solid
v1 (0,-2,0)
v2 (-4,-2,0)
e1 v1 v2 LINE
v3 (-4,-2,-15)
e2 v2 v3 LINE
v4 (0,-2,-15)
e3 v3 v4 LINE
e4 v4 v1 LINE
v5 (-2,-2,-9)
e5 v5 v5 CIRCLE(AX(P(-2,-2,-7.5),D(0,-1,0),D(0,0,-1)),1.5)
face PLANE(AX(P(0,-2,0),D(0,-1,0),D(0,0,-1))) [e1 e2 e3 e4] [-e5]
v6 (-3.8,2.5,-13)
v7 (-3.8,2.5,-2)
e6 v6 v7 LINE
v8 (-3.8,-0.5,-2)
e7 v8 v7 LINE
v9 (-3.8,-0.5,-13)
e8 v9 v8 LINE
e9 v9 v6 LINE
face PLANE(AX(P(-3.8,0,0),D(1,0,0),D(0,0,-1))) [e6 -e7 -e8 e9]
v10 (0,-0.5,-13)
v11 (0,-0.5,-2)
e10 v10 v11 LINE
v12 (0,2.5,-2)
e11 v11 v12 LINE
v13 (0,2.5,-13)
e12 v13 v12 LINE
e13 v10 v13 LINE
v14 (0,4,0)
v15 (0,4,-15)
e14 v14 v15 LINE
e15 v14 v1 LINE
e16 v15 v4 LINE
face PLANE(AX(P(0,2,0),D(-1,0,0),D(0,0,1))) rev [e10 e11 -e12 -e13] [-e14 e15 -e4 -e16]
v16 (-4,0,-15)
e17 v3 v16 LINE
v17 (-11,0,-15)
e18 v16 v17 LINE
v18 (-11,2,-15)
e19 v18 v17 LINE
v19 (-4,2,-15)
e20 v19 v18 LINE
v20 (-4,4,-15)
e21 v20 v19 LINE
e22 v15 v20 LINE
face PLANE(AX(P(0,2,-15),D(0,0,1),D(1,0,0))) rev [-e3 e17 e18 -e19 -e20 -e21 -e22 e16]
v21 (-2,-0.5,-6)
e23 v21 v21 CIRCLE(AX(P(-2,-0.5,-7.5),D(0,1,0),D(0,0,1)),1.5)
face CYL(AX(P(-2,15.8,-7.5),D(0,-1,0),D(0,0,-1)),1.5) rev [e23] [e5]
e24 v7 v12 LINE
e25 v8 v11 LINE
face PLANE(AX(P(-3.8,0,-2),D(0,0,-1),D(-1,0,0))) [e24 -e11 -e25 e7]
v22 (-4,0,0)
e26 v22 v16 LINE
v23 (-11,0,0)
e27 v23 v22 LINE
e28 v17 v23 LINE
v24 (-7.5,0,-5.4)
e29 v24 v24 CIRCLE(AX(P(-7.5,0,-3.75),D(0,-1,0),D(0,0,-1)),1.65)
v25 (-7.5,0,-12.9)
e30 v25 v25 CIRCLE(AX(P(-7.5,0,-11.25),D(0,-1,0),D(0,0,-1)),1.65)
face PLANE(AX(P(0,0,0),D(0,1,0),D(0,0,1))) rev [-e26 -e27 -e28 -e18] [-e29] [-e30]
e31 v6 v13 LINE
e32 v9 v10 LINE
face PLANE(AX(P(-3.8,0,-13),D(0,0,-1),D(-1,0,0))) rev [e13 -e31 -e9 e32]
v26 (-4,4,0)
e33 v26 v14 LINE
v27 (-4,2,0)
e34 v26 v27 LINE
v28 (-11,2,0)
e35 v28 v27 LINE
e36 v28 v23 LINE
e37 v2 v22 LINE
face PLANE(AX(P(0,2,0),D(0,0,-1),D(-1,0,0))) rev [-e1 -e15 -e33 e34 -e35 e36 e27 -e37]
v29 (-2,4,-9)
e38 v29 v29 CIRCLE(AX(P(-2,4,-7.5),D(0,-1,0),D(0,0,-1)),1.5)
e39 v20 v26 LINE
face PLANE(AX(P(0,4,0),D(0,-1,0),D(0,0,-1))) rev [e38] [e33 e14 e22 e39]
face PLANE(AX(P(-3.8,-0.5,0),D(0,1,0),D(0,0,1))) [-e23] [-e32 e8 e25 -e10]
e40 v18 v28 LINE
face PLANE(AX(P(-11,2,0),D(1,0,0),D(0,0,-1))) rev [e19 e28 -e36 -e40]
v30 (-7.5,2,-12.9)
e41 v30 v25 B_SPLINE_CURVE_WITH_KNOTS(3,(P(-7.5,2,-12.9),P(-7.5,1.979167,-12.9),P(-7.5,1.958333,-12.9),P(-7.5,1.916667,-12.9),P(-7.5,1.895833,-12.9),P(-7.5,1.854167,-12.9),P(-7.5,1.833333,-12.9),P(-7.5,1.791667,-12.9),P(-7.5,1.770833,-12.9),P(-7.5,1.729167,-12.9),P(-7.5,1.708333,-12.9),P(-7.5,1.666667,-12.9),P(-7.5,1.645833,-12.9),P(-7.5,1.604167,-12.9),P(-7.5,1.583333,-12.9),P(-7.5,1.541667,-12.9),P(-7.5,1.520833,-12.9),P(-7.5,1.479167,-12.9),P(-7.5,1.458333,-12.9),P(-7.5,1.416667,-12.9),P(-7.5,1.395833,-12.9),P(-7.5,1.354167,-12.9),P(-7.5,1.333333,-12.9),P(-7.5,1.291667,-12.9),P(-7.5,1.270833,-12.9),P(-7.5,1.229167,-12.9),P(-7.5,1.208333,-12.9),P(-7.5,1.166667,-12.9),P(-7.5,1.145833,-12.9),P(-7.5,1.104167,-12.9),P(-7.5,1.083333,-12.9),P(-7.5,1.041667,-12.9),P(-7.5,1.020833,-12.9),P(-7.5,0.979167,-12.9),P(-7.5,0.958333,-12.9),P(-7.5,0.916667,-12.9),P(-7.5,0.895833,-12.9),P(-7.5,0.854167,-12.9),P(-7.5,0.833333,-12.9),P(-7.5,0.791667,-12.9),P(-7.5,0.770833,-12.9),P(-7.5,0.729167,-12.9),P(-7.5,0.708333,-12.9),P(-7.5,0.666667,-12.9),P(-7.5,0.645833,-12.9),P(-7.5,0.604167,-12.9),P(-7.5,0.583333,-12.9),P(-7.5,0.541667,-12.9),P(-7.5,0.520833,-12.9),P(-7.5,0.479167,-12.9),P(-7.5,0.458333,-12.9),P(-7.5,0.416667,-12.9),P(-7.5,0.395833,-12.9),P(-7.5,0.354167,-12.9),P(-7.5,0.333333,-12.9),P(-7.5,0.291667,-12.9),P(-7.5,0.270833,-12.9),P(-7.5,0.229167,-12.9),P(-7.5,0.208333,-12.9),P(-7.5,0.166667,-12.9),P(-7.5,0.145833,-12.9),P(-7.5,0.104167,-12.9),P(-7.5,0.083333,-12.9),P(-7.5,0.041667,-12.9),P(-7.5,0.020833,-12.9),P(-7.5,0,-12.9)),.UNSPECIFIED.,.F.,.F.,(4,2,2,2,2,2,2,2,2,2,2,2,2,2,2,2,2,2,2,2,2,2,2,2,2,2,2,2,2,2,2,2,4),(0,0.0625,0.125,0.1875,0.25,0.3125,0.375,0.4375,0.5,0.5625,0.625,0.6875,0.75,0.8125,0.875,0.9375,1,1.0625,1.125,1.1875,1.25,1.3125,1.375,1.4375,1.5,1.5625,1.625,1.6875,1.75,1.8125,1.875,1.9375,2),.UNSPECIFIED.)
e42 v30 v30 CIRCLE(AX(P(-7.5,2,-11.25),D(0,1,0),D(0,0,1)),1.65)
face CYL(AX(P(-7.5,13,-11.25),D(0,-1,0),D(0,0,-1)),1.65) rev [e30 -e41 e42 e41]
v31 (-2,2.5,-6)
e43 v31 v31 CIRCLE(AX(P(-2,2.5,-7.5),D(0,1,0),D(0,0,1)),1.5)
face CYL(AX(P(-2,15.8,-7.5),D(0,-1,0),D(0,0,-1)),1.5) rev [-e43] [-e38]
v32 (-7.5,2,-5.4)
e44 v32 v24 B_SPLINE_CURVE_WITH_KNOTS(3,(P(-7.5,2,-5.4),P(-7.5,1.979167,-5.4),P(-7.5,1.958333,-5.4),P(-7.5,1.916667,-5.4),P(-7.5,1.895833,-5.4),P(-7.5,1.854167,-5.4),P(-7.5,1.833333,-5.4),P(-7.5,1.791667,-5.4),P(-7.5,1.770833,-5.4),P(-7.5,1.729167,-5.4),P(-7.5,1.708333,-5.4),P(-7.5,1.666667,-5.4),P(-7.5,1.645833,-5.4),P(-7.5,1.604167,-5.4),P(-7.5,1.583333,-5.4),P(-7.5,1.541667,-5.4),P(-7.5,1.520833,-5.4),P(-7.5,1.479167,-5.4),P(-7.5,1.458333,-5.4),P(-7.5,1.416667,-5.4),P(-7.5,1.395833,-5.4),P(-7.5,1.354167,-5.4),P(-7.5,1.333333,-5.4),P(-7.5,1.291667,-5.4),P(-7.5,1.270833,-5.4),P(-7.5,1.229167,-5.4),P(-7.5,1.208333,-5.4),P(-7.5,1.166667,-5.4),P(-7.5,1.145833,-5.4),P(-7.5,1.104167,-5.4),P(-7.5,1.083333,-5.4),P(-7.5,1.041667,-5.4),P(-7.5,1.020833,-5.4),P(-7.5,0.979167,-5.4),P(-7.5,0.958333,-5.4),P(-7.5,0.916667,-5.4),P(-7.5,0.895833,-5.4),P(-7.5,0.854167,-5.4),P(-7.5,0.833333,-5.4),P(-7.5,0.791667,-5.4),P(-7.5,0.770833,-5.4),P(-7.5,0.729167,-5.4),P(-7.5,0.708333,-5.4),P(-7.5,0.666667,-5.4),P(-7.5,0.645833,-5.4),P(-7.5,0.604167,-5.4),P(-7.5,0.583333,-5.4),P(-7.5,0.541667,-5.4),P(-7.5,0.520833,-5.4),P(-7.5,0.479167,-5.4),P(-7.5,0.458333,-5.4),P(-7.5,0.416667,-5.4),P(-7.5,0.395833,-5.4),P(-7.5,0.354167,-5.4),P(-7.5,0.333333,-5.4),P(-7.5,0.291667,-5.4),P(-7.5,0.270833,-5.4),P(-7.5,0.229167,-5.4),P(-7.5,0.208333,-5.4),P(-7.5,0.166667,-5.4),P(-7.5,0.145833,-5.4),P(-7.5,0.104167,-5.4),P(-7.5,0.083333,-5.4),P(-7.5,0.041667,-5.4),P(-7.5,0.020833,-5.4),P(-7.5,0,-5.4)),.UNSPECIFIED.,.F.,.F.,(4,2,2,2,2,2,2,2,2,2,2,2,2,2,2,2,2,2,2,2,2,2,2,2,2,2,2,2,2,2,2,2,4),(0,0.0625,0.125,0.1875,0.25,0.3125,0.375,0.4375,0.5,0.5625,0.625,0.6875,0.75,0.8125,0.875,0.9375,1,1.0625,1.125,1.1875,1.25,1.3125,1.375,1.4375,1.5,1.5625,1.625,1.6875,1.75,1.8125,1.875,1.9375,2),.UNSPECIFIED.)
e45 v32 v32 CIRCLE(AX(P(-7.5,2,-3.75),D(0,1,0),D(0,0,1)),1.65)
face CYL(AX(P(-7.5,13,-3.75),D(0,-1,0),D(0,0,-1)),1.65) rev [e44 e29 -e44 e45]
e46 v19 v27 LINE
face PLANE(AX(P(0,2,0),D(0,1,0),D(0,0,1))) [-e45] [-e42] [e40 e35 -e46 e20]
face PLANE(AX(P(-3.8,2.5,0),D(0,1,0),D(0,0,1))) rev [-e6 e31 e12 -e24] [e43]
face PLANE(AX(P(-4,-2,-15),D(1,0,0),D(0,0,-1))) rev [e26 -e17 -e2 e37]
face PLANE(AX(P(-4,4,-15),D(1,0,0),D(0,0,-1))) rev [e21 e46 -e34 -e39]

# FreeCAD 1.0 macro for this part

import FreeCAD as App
import Part
import Sketcher
Q = App.Units.Quantity

doc = App.newDocument("Part")
params = doc.addObject("Spreadsheet::Sheet", "Params")
for row, (alias, value) in enumerate([
    ("sketch1_width", "11 mm"),
    ("sketch1_height", "15 mm"),
    ("pad1_length", "2 mm"),
    ("sketch2_width", "4 mm"),
    ("sketch2_height", "15 mm"),
    ("pad2_length", "2 mm"),
    ("sketch3_width", "4 mm"),
    ("sketch3_height", "15 mm"),
    ("pad3_length", "2 mm"),
    ("sketch4_diameter", "3.3 mm"),
    ("pocket1_length", "13 mm"),
    ("sketch5_width", "3 mm"),
    ("sketch5_height", "11 mm"),
    ("pocket2_length", "3.8 mm"),
    ("sketch6_diameter", "3 mm"),
    ("pocket3_length", "17.8 mm"),
], start=1):
    params.set(f"A{row}", alias)
    params.set(f"B{row}", "=" + value)
    params.setAlias(f"B{row}", alias)

body = doc.addObject("PartDesign::Body", "Body")

# Sketch on XZ plane
sketch1 = body.newObject("Sketcher::SketchObject", "Sketch")
sketch1.AttachmentSupport = (doc.getObject("XZ_Plane"), [""])
sketch1.MapMode = "FlatFace"
sketch1.addGeometry([
    Part.LineSegment(App.Vector(-11, -15, 0), App.Vector(-11, 0, 0)),
    Part.LineSegment(App.Vector(-11, 0, 0), App.Vector(0, 0, 0)),
    Part.LineSegment(App.Vector(0, 0, 0), App.Vector(0, -15, 0)),
    Part.LineSegment(App.Vector(0, -15, 0), App.Vector(-11, -15, 0)),
], False)
sketch1.addConstraint([
    Sketcher.Constraint("Coincident", 0, 2, 1, 1),
    Sketcher.Constraint("Coincident", 1, 2, 2, 1),
    Sketcher.Constraint("Coincident", 2, 2, 3, 1),
    Sketcher.Constraint("Coincident", 3, 2, 0, 1),
    Sketcher.Constraint("Vertical", 0),
    Sketcher.Constraint("Horizontal", 1),
    Sketcher.Constraint("Vertical", 2),
    Sketcher.Constraint("Horizontal", 3),
    Sketcher.Constraint("Coincident", 1, 2, -1, 1),
    Sketcher.Constraint("DistanceX", 1, 1, 1, 2, Q("11 mm")),
    Sketcher.Constraint("DistanceY", 0, 1, 0, 2, Q("15 mm")),
])
sketch1.setExpression("Constraints[9]", "Params.sketch1_width")
sketch1.setExpression("Constraints[10]", "Params.sketch1_height")
pad1 = body.newObject("PartDesign::Pad", "Pad")
pad1.Profile = sketch1
pad1.setExpression("Length", "Params.pad1_length")
pad1.Reversed = True

# Sketch on XZ plane
sketch2 = body.newObject("Sketcher::SketchObject", "Sketch001")
sketch2.AttachmentSupport = (doc.getObject("XZ_Plane"), [""])
sketch2.MapMode = "FlatFace"
sketch2.AttachmentOffset = App.Placement(App.Vector(0, 0, -2), App.Rotation())
sketch2.addGeometry([
    Part.LineSegment(App.Vector(-4, -15, 0), App.Vector(-4, 0, 0)),
    Part.LineSegment(App.Vector(-4, 0, 0), App.Vector(0, 0, 0)),
    Part.LineSegment(App.Vector(0, 0, 0), App.Vector(0, -15, 0)),
    Part.LineSegment(App.Vector(0, -15, 0), App.Vector(-4, -15, 0)),
], False)
sketch2.addConstraint([
    Sketcher.Constraint("Coincident", 0, 2, 1, 1),
    Sketcher.Constraint("Coincident", 1, 2, 2, 1),
    Sketcher.Constraint("Coincident", 2, 2, 3, 1),
    Sketcher.Constraint("Coincident", 3, 2, 0, 1),
    Sketcher.Constraint("Vertical", 0),
    Sketcher.Constraint("Horizontal", 1),
    Sketcher.Constraint("Vertical", 2),
    Sketcher.Constraint("Horizontal", 3),
    Sketcher.Constraint("Coincident", 1, 2, -1, 1),
    Sketcher.Constraint("DistanceX", 1, 1, 1, 2, Q("4 mm")),
    Sketcher.Constraint("DistanceY", 0, 1, 0, 2, Q("15 mm")),
])
sketch2.setExpression("Constraints[9]", "Params.sketch2_width")
sketch2.setExpression("Constraints[10]", "Params.sketch2_height")
pad2 = body.newObject("PartDesign::Pad", "Pad001")
pad2.Profile = sketch2
pad2.setExpression("Length", "Params.pad2_length")
pad2.Reversed = True

# Sketch on XZ plane
sketch3 = body.newObject("Sketcher::SketchObject", "Sketch002")
sketch3.AttachmentSupport = (doc.getObject("XZ_Plane"), [""])
sketch3.MapMode = "FlatFace"
sketch3.addGeometry([
    Part.LineSegment(App.Vector(0, -15, 0), App.Vector(0, 0, 0)),
    Part.LineSegment(App.Vector(0, 0, 0), App.Vector(-4, 0, 0)),
    Part.LineSegment(App.Vector(-4, 0, 0), App.Vector(-4, -15, 0)),
    Part.LineSegment(App.Vector(-4, -15, 0), App.Vector(0, -15, 0)),
], False)
sketch3.addConstraint([
    Sketcher.Constraint("Coincident", 0, 2, 1, 1),
    Sketcher.Constraint("Coincident", 1, 2, 2, 1),
    Sketcher.Constraint("Coincident", 2, 2, 3, 1),
    Sketcher.Constraint("Coincident", 3, 2, 0, 1),
    Sketcher.Constraint("Vertical", 0),
    Sketcher.Constraint("Horizontal", 1),
    Sketcher.Constraint("Vertical", 2),
    Sketcher.Constraint("Horizontal", 3),
    Sketcher.Constraint("Coincident", 0, 2, -1, 1),
    Sketcher.Constraint("DistanceX", 1, 2, 1, 1, Q("4 mm")),
    Sketcher.Constraint("DistanceY", 0, 1, 0, 2, Q("15 mm")),
])
sketch3.setExpression("Constraints[9]", "Params.sketch3_width")
sketch3.setExpression("Constraints[10]", "Params.sketch3_height")
pad3 = body.newObject("PartDesign::Pad", "Pad002")
pad3.Profile = sketch3
pad3.setExpression("Length", "Params.pad3_length")

# Sketch on XZ plane
sketch4 = body.newObject("Sketcher::SketchObject", "Sketch003")
sketch4.AttachmentSupport = (doc.getObject("XZ_Plane"), [""])
sketch4.MapMode = "FlatFace"
sketch4.addGeometry([
    Part.Circle(App.Vector(-7.5, -11.25, 0), App.Vector(0, 0, 1), 1.65),
    Part.Circle(App.Vector(-7.5, -3.75, 0), App.Vector(0, 0, 1), 1.65),
], False)
sketch4.addConstraint([
    Sketcher.Constraint("Equal", 0, 1),
    Sketcher.Constraint("Vertical", 0, 3, 1, 3),
    Sketcher.Constraint("Diameter", 0, Q("3.3 mm")),
    Sketcher.Constraint("DistanceX", 0, 3, -1, 1, Q("7.5 mm")),
    Sketcher.Constraint("DistanceY", 0, 3, 1, 3, Q("7.5 mm")),
    Sketcher.Constraint("DistanceY", 0, 3, -1, 1, Q("11.25 mm")),
])
sketch4.setExpression("Constraints[2]", "Params.sketch4_diameter")
pocket1 = body.newObject("PartDesign::Pocket", "Pocket")
pocket1.Profile = sketch4
pocket1.setExpression("Length", "Params.pocket1_length")

# Sketch on YZ plane
sketch5 = body.newObject("Sketcher::SketchObject", "Sketch004")
sketch5.AttachmentSupport = (doc.getObject("YZ_Plane"), [""])
sketch5.MapMode = "FlatFace"
sketch5.addGeometry([
    Part.LineSegment(App.Vector(2.5, -2, 0), App.Vector(-0.5, -2, 0)),
    Part.LineSegment(App.Vector(-0.5, -2, 0), App.Vector(-0.5, -13, 0)),
    Part.LineSegment(App.Vector(-0.5, -13, 0), App.Vector(2.5, -13, 0)),
    Part.LineSegment(App.Vector(2.5, -13, 0), App.Vector(2.5, -2, 0)),
], False)
sketch5.addConstraint([
    Sketcher.Constraint("Coincident", 0, 2, 1, 1),
    Sketcher.Constraint("Coincident", 1, 2, 2, 1),
    Sketcher.Constraint("Coincident", 2, 2, 3, 1),
    Sketcher.Constraint("Coincident", 3, 2, 0, 1),
    Sketcher.Constraint("Horizontal", 0),
    Sketcher.Constraint("Vertical", 1),
    Sketcher.Constraint("Horizontal", 2),
    Sketcher.Constraint("Vertical", 3),
    Sketcher.Constraint("DistanceX", 0, 2, 0, 1, Q("3 mm")),
    Sketcher.Constraint("DistanceY", 1, 2, 1, 1, Q("11 mm")),
    Sketcher.Constraint("DistanceY", 0, 2, -1, 1, Q("2 mm")),
    Sketcher.Constraint("DistanceX", 0, 2, -1, 1, Q("0.5 mm")),
])
sketch5.setExpression("Constraints[8]", "Params.sketch5_width")
sketch5.setExpression("Constraints[9]", "Params.sketch5_height")
pocket2 = body.newObject("PartDesign::Pocket", "Pocket001")
pocket2.Profile = sketch5
pocket2.setExpression("Length", "Params.pocket2_length")

# Sketch on XZ plane
sketch6 = body.newObject("Sketcher::SketchObject", "Sketch005")
sketch6.AttachmentSupport = (doc.getObject("XZ_Plane"), [""])
sketch6.MapMode = "FlatFace"
sketch6.AttachmentOffset = App.Placement(App.Vector(0, 0, 2), App.Rotation())
sketch6.addGeometry(Part.Circle(App.Vector(-2, -7.5, 0), App.Vector(0, 0, 1), 1.5), False)
sketch6.addConstraint([
    Sketcher.Constraint("Diameter", 0, Q("3 mm")),
    Sketcher.Constraint("DistanceX", 0, 3, -1, 1, Q("2 mm")),
    Sketcher.Constraint("DistanceY", 0, 3, -1, 1, Q("7.5 mm")),
])
sketch6.setExpression("Constraints[0]", "Params.sketch6_diameter")
pocket3 = body.newObject("PartDesign::Pocket", "Pocket002")
pocket3.Profile = sketch6
pocket3.setExpression("Length", "Params.pocket3_length")

doc.recompute()
